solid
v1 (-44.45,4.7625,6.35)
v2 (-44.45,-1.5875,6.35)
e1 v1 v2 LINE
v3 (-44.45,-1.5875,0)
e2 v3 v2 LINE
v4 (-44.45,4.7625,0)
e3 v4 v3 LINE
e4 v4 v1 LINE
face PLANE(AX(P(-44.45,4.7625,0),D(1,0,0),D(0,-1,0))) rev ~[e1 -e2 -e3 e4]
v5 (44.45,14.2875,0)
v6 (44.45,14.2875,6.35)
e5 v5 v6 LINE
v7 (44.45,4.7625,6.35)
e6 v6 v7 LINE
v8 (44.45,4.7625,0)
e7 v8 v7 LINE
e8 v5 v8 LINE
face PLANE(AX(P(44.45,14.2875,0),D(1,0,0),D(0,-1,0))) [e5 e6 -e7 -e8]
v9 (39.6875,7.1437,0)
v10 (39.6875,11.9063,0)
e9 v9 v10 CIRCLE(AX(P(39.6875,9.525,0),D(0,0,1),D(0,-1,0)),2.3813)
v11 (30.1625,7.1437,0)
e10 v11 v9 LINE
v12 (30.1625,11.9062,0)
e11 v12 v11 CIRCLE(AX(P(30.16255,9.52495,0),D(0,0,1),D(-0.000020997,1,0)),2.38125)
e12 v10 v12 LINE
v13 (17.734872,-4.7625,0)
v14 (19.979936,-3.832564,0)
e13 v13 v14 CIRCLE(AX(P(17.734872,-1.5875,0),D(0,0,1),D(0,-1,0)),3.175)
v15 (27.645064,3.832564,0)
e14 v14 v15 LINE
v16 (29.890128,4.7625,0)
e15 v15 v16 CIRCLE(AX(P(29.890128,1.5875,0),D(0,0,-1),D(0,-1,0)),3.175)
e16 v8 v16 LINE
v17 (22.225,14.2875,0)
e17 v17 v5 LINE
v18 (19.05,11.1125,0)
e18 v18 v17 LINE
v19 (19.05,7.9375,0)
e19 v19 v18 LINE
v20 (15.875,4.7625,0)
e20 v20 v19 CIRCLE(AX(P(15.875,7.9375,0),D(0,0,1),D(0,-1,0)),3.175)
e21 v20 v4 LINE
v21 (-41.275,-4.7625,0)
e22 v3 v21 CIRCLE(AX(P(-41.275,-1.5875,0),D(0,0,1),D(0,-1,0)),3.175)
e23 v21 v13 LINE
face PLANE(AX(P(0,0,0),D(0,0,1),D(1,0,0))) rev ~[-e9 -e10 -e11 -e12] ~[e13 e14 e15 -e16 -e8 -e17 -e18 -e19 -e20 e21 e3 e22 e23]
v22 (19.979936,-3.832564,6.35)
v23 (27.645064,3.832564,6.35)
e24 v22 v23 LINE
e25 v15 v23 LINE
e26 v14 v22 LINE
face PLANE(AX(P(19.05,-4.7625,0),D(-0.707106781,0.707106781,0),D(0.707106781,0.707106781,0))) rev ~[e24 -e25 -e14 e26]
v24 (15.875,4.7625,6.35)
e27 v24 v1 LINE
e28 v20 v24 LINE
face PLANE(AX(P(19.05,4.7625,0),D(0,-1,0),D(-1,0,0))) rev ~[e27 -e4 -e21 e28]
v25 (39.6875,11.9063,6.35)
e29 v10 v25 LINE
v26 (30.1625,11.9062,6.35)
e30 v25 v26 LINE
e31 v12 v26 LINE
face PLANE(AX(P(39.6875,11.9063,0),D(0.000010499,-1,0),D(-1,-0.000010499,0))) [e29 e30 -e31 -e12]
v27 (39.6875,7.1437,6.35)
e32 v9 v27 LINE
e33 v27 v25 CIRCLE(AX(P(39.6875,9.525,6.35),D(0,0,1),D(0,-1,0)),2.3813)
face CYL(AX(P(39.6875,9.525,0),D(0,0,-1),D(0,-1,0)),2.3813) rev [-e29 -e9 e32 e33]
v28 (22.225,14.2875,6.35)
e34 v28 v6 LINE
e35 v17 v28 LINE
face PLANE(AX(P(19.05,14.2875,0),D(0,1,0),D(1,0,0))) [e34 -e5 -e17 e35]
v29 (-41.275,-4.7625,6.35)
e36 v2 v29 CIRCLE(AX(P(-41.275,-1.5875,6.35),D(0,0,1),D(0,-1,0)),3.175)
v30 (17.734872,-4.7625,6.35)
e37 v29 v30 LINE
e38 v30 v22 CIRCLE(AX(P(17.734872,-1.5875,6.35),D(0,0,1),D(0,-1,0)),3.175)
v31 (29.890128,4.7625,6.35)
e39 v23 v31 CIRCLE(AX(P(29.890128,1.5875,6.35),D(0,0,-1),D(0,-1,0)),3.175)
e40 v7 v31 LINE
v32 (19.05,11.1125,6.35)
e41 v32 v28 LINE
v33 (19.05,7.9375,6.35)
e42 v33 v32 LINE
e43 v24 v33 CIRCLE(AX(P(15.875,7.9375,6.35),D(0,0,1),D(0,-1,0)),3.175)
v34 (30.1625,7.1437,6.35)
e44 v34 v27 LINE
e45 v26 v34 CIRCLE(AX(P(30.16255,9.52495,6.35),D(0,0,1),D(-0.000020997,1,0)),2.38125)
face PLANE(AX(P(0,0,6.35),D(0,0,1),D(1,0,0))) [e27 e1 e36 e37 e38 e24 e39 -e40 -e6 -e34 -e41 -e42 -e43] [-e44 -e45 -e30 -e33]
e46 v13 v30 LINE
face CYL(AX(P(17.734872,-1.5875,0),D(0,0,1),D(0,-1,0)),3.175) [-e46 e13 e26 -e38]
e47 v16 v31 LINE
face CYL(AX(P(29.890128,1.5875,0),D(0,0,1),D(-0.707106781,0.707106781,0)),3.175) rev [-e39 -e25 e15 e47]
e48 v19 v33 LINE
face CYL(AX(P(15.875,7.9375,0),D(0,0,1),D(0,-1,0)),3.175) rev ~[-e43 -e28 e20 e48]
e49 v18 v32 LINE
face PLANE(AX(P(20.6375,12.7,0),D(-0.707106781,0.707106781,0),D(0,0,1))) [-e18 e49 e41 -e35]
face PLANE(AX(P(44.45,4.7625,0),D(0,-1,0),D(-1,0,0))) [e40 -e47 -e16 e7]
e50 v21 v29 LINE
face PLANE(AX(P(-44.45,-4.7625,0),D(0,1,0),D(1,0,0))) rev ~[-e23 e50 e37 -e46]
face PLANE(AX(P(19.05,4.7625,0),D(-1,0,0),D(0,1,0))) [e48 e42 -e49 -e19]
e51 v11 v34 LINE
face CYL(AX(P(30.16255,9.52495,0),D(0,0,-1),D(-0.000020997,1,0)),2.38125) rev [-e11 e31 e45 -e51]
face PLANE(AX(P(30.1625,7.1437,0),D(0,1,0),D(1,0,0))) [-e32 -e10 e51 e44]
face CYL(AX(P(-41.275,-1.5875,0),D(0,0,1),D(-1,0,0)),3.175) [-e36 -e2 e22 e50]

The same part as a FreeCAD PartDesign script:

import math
import FreeCAD as App
import Part
import Sketcher

V = App.Vector
Q = App.Units.Quantity


def edges_at(feature, points):
    """Names of the edges that pass closest to the given points."""
    edges = feature.Shape.Edges
    near = lambda p: min(range(len(edges)), key=lambda i: edges[i].distToShape(Part.Vertex(*p))[0])
    return sorted({f"Edge{near(p) + 1}" for p in points})


def add_polygon(sketch, points):
    """Adds a closed chain of lines whose ends are joined by coincident constraints."""
    first, n = sketch.GeometryCount, len(points)
    for a, b in zip(points, points[1:] + points[:1]):
        sketch.addGeometry(Part.LineSegment(App.Vector(*a, 0), App.Vector(*b, 0)), False)
    for i in range(n):
        sketch.addConstraint(Sketcher.Constraint("Coincident", first + i, 2, first + (i + 1) % n, 1))

doc = App.newDocument("Part")
body = doc.addObject("PartDesign::Body", "Body")

# Sketch on XY plane
sketch1 = body.newObject("Sketcher::SketchObject", "Sketch")
sketch1.AttachmentSupport = (doc.getObject("XY_Plane"), [""])
sketch1.MapMode = "FlatFace"
add_polygon(sketch1, [(-44.45, 4.7625), (-44.45, -4.7625), (19.05, -4.7625), (28.575, 4.7625), (44.45, 4.7625), (44.45, 14.2875), (19.05, 14.2875), (19.05, 4.7625)])  # lines 0-7
sketch1.addGeometry(Part.ArcOfCircle(Part.Circle(V(39.6875, 9.525, 0), V(0, 0, 1), 2.3813), math.radians(-90), math.radians(90)), False)  # 8
sketch1.addGeometry(Part.LineSegment(V(39.6875, 7.1437, 0), V(30.1625, 7.1437, 0)), False)  # 9
sketch1.addGeometry(Part.ArcOfCircle(Part.Circle(V(30.1625, 9.525, 0), V(0, 0, 1), 2.3812), math.radians(90), math.radians(270)), False)  # 10
sketch1.addGeometry(Part.LineSegment(V(30.1625, 11.9062, 0), V(39.6875, 11.9063, 0)), False)  # 11
sketch1.addConstraint([
    Sketcher.Constraint("Tangent", 8, 1, 9, 1),
    Sketcher.Constraint("Tangent", 9, 2, 10, 2),
    Sketcher.Constraint("Tangent", 10, 1, 11, 1),
    Sketcher.Constraint("Tangent", 11, 2, 8, 2),
    Sketcher.Constraint("Vertical", 0),
    Sketcher.Constraint("Horizontal", 1),
    Sketcher.Constraint("Horizontal", 3),
    Sketcher.Constraint("Vertical", 4),
    Sketcher.Constraint("Horizontal", 5),
    Sketcher.Constraint("Vertical", 6),
    Sketcher.Constraint("Horizontal", 7),
    Sketcher.Constraint("Horizontal", 9),
    Sketcher.Constraint("Horizontal", 11),
    Sketcher.Constraint("Symmetric", 0, 2, 3, 2, -1, 1),
    Sketcher.Constraint("Symmetric", 1, 2, 6, 2, -1),
    Sketcher.Constraint("Equal", 11, 0),
    Sketcher.Constraint("Equal", 0, 4),
    Sketcher.Constraint("DistanceX", 5, 2, 5, 1, Q("1 in")),
    Sketcher.Constraint("Angle", 2, Q("45 deg")),
    Sketcher.Constraint("Radius", 8, Q("0.093752 in")),
    Sketcher.Constraint("DistanceX", 0, 2, 3, 2, Q("3.5 in")),
    Sketcher.Constraint("DistanceX", 9, 2, 9, 1, Q("0.375 in")),
    Sketcher.Constraint("DistanceY", -1, 1, 8, 3, Q("0.375 in")),
    Sketcher.Constraint("DistanceX", 8, 3, 3, 2, Q("0.1875 in")),
])
pad1 = body.newObject("PartDesign::Pad", "Pad")
pad1.Profile = sketch1
pad1.Length = Q("0.25 in")
doc.recompute()

fillet = body.newObject("PartDesign::Fillet", "Fillet")
fillet.Base = (pad1, edges_at(pad1, [(19.05, 4.763, 3.175), (28.575, 4.763, 3.175), (19.05, -4.763, 3.175)]))
fillet.Radius = Q("0.125 in")
doc.recompute()

chamfer = body.newObject("PartDesign::Chamfer", "Chamfer")
chamfer.Base = (fillet, edges_at(fillet, [(19.05, 14.287, 3.175)]))
chamfer.Size = Q("0.125 in")
doc.recompute()

fillet2 = body.newObject("PartDesign::Fillet", "Fillet001")
fillet2.Base = (chamfer, edges_at(chamfer, [(-44.45, -4.763, 3.175)]))
fillet2.Radius = Q("0.125 in")

doc.recompute()
